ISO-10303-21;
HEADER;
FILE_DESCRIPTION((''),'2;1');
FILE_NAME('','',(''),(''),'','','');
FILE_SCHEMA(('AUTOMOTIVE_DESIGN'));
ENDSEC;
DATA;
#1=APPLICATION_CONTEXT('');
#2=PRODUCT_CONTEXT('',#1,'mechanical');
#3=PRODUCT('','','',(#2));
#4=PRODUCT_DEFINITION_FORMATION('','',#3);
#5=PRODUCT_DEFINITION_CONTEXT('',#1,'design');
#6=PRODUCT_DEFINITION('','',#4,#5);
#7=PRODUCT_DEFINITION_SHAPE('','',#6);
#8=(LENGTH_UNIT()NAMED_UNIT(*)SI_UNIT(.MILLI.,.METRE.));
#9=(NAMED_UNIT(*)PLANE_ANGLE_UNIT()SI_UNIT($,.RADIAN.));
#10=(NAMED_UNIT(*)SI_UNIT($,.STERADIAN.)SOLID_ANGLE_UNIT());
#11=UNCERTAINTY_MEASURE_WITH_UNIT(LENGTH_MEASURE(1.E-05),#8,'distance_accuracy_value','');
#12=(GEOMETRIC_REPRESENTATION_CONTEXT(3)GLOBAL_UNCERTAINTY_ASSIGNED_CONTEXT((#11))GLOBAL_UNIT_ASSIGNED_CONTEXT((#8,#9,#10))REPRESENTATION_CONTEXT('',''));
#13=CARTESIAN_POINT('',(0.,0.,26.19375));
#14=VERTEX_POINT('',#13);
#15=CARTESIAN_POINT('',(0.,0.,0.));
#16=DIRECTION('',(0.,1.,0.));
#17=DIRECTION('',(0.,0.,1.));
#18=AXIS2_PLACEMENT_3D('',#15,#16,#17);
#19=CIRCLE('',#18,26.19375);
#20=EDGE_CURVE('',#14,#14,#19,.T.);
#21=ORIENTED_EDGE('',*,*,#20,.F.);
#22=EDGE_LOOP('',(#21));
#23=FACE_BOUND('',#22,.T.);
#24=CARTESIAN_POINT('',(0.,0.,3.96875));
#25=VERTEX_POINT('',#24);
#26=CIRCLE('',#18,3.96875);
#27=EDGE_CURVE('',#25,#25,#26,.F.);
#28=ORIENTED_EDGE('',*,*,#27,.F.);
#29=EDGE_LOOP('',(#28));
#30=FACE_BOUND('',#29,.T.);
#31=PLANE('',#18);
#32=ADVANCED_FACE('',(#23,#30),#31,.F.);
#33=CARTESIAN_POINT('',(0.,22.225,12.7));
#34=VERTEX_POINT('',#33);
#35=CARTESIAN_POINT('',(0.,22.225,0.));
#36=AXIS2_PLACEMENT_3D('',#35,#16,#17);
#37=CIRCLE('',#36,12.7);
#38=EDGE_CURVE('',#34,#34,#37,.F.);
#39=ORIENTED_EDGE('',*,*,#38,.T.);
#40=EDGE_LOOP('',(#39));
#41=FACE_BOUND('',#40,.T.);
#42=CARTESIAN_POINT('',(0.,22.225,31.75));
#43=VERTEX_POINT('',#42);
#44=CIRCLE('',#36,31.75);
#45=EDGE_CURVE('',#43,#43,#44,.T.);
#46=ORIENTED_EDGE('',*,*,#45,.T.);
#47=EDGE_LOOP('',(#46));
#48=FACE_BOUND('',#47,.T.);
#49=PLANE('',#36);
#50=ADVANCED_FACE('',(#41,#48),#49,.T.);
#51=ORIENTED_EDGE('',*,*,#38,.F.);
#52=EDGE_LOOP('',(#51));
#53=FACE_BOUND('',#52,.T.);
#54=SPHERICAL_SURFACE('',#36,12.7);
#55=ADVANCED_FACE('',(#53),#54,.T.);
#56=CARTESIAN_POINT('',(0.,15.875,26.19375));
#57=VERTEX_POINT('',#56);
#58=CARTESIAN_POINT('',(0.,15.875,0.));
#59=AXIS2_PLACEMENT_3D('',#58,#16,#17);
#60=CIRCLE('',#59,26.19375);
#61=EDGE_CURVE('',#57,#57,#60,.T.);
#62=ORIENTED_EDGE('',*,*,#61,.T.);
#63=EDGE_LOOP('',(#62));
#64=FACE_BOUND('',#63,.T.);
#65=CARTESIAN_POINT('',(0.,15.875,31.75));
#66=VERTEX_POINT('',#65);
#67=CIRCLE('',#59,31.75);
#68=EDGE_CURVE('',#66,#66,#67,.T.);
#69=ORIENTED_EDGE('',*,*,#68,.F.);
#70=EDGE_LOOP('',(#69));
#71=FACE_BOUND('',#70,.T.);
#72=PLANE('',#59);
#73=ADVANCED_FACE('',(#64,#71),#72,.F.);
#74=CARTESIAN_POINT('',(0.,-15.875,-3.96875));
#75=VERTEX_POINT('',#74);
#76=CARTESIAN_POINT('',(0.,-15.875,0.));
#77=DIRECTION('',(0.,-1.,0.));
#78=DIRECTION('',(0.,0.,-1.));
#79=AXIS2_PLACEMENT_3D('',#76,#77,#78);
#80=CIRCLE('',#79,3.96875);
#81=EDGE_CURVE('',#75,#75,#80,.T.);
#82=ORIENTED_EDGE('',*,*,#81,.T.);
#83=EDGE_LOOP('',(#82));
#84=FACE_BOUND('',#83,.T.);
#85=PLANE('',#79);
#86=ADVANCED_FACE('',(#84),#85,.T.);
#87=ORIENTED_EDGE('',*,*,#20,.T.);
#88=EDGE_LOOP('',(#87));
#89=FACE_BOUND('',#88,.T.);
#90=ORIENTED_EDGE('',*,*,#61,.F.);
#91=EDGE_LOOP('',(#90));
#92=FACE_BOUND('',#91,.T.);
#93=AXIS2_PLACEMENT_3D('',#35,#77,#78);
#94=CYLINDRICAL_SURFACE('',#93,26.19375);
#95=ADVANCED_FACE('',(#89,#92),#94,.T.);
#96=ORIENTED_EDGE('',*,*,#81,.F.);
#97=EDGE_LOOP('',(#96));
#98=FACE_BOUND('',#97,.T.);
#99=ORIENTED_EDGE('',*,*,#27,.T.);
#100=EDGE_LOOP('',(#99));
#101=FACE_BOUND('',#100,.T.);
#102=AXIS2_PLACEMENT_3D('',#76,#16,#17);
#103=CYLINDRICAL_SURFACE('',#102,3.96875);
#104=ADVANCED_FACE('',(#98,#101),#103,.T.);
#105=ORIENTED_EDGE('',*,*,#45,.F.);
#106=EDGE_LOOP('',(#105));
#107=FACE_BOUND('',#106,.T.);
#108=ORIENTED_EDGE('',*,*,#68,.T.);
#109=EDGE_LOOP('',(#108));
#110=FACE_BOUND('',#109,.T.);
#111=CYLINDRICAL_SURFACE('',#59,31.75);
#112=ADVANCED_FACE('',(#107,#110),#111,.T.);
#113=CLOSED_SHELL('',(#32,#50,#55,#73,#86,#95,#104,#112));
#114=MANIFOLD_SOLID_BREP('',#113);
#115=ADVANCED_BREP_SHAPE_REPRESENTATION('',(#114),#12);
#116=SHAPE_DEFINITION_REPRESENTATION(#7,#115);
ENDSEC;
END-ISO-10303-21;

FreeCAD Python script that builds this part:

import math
import FreeCAD as App
import Part
import Sketcher

V = App.Vector
Q = App.Units.Quantity

doc = App.newDocument("Part")
params = doc.addObject("Spreadsheet::Sheet", "Params")
for row, (alias, value) in enumerate([
    ("sketch1_diameter", "2.0625 in"),
    ("pad1_length", "0.875 in"),
    ("sketch2_diameter", "2.5 in"),
    ("pad2_length", "0.25 in"),
    ("sketch3_radius", "0.5 in"),
    ("revolution_angle", "360 deg"),
    ("sketch4_diameter", "0.3125 in"),
    ("pad3_length", "0.625 in"),
], start=1):
    params.set(f"A{row}", alias)
    params.set(f"B{row}", "=" + value)
    params.setAlias(f"B{row}", alias)

body = doc.addObject("PartDesign::Body", "Body")

# Sketch on XZ plane
sketch1 = body.newObject("Sketcher::SketchObject", "Sketch")
sketch1.AttachmentSupport = (doc.getObject("XZ_Plane"), [""])
sketch1.MapMode = "FlatFace"
sketch1.addGeometry(Part.Circle(V(0, 0, 0), V(0, 0, 1), 26), False)
sketch1.addConstraint([
    Sketcher.Constraint("Coincident", 0, 3, -1, 1),
    Sketcher.Constraint("Diameter", 0, Q("2.0625 in")),
])
sketch1.setExpression("Constraints[1]", "Params.sketch1_diameter")
pad1 = body.newObject("PartDesign::Pad", "Pad")
pad1.Profile = sketch1
pad1.setExpression("Length", "Params.pad1_length")
pad1.Reversed = True

# Sketch on XZ plane
sketch2 = body.newObject("Sketcher::SketchObject", "Sketch001")
sketch2.AttachmentSupport = (doc.getObject("XZ_Plane"), [""])
sketch2.MapMode = "FlatFace"
sketch2.AttachmentOffset = App.Placement(V(0, 0, -0.875 * 25.4), App.Rotation())
sketch2.addGeometry(Part.Circle(V(0, 0, 0), V(0, 0, 1), 32), False)
sketch2.addConstraint([
    Sketcher.Constraint("Coincident", 0, 3, -1, 1),
    Sketcher.Constraint("Diameter", 0, Q("2.5 in")),
])
sketch2.setExpression("Constraints[1]", "Params.sketch2_diameter")
pad2 = body.newObject("PartDesign::Pad", "Pad001")
pad2.Profile = sketch2
pad2.setExpression("Length", "Params.pad2_length")

# Sketch on XZ plane
sketch3 = body.newObject("Sketcher::SketchObject", "Sketch002")
sketch3.AttachmentSupport = (doc.getObject("XZ_Plane"), [""])
sketch3.MapMode = "FlatFace"
sketch3.AttachmentOffset = App.Placement(V(0, 0, -0.875 * 25.4), App.Rotation())
sketch3.addGeometry([
    Part.LineSegment(V(0, -13, 0), V(0, 13, 0)),
    Part.ArcOfCircle(Part.Circle(V(0, 0, 0), V(0, 0, 1), 13), math.radians(-90), math.radians(90)),
], False)
sketch3.addConstraint([
    Sketcher.Constraint("Coincident", 0, 1, 1, 1),
    Sketcher.Constraint("Coincident", 1, 2, 0, 2),
    Sketcher.Constraint("Vertical", 0),
    Sketcher.Constraint("Coincident", 1, 3, -1, 1),
    Sketcher.Constraint("PointOnObject", 0, 1, -2),
    Sketcher.Constraint("Radius", 1, Q("0.5 in")),
])
sketch3.setExpression("Constraints[5]", "Params.sketch3_radius")
revolution = body.newObject("PartDesign::Revolution", "Revolution")
revolution.Profile = sketch3
revolution.ReferenceAxis = (sketch3, ["V_Axis"])
revolution.setExpression("Angle", "Params.revolution_angle")

# Sketch on XZ plane
sketch4 = body.newObject("Sketcher::SketchObject", "Sketch003")
sketch4.AttachmentSupport = (doc.getObject("XZ_Plane"), [""])
sketch4.MapMode = "FlatFace"
sketch4.addGeometry(Part.Circle(V(0, 0, 0), V(0, 0, 1), 4), False)
sketch4.addConstraint([
    Sketcher.Constraint("Coincident", 0, 3, -1, 1),
    Sketcher.Constraint("Diameter", 0, Q("0.3125 in")),
])
sketch4.setExpression("Constraints[1]", "Params.sketch4_diameter")
pad3 = body.newObject("PartDesign::Pad", "Pad002")
pad3.Profile = sketch4
pad3.setExpression("Length", "Params.pad3_length")

doc.recompute()
